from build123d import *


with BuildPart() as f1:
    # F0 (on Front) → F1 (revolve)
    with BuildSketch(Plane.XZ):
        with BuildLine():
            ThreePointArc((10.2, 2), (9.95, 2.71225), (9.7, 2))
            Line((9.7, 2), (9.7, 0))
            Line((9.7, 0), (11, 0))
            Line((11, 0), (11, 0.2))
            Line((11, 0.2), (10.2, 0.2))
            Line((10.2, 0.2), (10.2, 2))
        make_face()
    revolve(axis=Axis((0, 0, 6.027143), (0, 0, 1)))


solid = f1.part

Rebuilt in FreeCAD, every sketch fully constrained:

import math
import FreeCAD as App
import Part
import Sketcher
Q = App.Units.Quantity

doc = App.newDocument("Part")
body = doc.addObject("PartDesign::Body", "Body")

# Sketch on XZ plane
sketch1 = body.newObject("Sketcher::SketchObject", "Sketch")
sketch1.AttachmentSupport = (doc.getObject("XZ_Plane"), [""])
sketch1.MapMode = "FlatFace"
sketch1.addGeometry(Part.ArcOfCircle(Part.Circle(App.Vector(9.95, 2.31, 0), App.Vector(0, 0, 1), 0.4), math.radians(-51), math.radians(231)), False)
sketch1.addGeometry(Part.LineSegment(App.Vector(9.7, 2, 0), App.Vector(9.7, 0, 0)), False)
sketch1.addGeometry(Part.LineSegment(App.Vector(9.7, 0, 0), App.Vector(11, 0, 0)), False)
sketch1.addGeometry(Part.LineSegment(App.Vector(11, 0, 0), App.Vector(11, 0.2, 0)), False)
sketch1.addGeometry(Part.LineSegment(App.Vector(11, 0.2, 0), App.Vector(10.2, 0.2, 0)), False)
sketch1.addGeometry(Part.LineSegment(App.Vector(10.2, 0.2, 0), App.Vector(10.2, 2, 0)), False)
sketch1.addConstraint(Sketcher.Constraint("Coincident", 0, 2, 1, 1))
sketch1.addConstraint(Sketcher.Constraint("Coincident", 1, 2, 2, 1))
sketch1.addConstraint(Sketcher.Constraint("Coincident", 2, 2, 3, 1))
sketch1.addConstraint(Sketcher.Constraint("Coincident", 3, 2, 4, 1))
sketch1.addConstraint(Sketcher.Constraint("Coincident", 4, 2, 5, 1))
sketch1.addConstraint(Sketcher.Constraint("Coincident", 5, 2, 0, 1))
sketch1.addConstraint(Sketcher.Constraint("Vertical", 1))
sketch1.addConstraint(Sketcher.Constraint("Horizontal", 2))
sketch1.addConstraint(Sketcher.Constraint("Vertical", 3))
sketch1.addConstraint(Sketcher.Constraint("Horizontal", 4))
sketch1.addConstraint(Sketcher.Constraint("Vertical", 5))
sketch1.addConstraint(Sketcher.Constraint("PointOnObject", 1, 2, -1))
sketch1.addConstraint(Sketcher.Constraint("Horizontal", 0, 2, 5, 2))
sketch1.addConstraint(Sketcher.Constraint("Radius", 0, Q("0.4 mm")))
sketch1.addConstraint(Sketcher.Constraint("DistanceY", 1, 2, 1, 1, Q("2 mm")))
sketch1.addConstraint(Sketcher.Constraint("DistanceX", 2, 1, 2, 2, Q("1.3 mm")))
sketch1.addConstraint(Sketcher.Constraint("DistanceX", 4, 2, 4, 1, Q("0.8 mm")))
sketch1.addConstraint(Sketcher.Constraint("DistanceY", 3, 1, 3, 2, Q("0.2 mm")))
sketch1.addConstraint(Sketcher.Constraint("DistanceX", -1, 1, 2, 2, Q("11 mm")))
revolution = body.newObject("PartDesign::Revolution", "Revolution")
revolution.Profile = sketch1
revolution.ReferenceAxis = (sketch1, ["V_Axis"])
revolution.Angle = 360

doc.recompute()
